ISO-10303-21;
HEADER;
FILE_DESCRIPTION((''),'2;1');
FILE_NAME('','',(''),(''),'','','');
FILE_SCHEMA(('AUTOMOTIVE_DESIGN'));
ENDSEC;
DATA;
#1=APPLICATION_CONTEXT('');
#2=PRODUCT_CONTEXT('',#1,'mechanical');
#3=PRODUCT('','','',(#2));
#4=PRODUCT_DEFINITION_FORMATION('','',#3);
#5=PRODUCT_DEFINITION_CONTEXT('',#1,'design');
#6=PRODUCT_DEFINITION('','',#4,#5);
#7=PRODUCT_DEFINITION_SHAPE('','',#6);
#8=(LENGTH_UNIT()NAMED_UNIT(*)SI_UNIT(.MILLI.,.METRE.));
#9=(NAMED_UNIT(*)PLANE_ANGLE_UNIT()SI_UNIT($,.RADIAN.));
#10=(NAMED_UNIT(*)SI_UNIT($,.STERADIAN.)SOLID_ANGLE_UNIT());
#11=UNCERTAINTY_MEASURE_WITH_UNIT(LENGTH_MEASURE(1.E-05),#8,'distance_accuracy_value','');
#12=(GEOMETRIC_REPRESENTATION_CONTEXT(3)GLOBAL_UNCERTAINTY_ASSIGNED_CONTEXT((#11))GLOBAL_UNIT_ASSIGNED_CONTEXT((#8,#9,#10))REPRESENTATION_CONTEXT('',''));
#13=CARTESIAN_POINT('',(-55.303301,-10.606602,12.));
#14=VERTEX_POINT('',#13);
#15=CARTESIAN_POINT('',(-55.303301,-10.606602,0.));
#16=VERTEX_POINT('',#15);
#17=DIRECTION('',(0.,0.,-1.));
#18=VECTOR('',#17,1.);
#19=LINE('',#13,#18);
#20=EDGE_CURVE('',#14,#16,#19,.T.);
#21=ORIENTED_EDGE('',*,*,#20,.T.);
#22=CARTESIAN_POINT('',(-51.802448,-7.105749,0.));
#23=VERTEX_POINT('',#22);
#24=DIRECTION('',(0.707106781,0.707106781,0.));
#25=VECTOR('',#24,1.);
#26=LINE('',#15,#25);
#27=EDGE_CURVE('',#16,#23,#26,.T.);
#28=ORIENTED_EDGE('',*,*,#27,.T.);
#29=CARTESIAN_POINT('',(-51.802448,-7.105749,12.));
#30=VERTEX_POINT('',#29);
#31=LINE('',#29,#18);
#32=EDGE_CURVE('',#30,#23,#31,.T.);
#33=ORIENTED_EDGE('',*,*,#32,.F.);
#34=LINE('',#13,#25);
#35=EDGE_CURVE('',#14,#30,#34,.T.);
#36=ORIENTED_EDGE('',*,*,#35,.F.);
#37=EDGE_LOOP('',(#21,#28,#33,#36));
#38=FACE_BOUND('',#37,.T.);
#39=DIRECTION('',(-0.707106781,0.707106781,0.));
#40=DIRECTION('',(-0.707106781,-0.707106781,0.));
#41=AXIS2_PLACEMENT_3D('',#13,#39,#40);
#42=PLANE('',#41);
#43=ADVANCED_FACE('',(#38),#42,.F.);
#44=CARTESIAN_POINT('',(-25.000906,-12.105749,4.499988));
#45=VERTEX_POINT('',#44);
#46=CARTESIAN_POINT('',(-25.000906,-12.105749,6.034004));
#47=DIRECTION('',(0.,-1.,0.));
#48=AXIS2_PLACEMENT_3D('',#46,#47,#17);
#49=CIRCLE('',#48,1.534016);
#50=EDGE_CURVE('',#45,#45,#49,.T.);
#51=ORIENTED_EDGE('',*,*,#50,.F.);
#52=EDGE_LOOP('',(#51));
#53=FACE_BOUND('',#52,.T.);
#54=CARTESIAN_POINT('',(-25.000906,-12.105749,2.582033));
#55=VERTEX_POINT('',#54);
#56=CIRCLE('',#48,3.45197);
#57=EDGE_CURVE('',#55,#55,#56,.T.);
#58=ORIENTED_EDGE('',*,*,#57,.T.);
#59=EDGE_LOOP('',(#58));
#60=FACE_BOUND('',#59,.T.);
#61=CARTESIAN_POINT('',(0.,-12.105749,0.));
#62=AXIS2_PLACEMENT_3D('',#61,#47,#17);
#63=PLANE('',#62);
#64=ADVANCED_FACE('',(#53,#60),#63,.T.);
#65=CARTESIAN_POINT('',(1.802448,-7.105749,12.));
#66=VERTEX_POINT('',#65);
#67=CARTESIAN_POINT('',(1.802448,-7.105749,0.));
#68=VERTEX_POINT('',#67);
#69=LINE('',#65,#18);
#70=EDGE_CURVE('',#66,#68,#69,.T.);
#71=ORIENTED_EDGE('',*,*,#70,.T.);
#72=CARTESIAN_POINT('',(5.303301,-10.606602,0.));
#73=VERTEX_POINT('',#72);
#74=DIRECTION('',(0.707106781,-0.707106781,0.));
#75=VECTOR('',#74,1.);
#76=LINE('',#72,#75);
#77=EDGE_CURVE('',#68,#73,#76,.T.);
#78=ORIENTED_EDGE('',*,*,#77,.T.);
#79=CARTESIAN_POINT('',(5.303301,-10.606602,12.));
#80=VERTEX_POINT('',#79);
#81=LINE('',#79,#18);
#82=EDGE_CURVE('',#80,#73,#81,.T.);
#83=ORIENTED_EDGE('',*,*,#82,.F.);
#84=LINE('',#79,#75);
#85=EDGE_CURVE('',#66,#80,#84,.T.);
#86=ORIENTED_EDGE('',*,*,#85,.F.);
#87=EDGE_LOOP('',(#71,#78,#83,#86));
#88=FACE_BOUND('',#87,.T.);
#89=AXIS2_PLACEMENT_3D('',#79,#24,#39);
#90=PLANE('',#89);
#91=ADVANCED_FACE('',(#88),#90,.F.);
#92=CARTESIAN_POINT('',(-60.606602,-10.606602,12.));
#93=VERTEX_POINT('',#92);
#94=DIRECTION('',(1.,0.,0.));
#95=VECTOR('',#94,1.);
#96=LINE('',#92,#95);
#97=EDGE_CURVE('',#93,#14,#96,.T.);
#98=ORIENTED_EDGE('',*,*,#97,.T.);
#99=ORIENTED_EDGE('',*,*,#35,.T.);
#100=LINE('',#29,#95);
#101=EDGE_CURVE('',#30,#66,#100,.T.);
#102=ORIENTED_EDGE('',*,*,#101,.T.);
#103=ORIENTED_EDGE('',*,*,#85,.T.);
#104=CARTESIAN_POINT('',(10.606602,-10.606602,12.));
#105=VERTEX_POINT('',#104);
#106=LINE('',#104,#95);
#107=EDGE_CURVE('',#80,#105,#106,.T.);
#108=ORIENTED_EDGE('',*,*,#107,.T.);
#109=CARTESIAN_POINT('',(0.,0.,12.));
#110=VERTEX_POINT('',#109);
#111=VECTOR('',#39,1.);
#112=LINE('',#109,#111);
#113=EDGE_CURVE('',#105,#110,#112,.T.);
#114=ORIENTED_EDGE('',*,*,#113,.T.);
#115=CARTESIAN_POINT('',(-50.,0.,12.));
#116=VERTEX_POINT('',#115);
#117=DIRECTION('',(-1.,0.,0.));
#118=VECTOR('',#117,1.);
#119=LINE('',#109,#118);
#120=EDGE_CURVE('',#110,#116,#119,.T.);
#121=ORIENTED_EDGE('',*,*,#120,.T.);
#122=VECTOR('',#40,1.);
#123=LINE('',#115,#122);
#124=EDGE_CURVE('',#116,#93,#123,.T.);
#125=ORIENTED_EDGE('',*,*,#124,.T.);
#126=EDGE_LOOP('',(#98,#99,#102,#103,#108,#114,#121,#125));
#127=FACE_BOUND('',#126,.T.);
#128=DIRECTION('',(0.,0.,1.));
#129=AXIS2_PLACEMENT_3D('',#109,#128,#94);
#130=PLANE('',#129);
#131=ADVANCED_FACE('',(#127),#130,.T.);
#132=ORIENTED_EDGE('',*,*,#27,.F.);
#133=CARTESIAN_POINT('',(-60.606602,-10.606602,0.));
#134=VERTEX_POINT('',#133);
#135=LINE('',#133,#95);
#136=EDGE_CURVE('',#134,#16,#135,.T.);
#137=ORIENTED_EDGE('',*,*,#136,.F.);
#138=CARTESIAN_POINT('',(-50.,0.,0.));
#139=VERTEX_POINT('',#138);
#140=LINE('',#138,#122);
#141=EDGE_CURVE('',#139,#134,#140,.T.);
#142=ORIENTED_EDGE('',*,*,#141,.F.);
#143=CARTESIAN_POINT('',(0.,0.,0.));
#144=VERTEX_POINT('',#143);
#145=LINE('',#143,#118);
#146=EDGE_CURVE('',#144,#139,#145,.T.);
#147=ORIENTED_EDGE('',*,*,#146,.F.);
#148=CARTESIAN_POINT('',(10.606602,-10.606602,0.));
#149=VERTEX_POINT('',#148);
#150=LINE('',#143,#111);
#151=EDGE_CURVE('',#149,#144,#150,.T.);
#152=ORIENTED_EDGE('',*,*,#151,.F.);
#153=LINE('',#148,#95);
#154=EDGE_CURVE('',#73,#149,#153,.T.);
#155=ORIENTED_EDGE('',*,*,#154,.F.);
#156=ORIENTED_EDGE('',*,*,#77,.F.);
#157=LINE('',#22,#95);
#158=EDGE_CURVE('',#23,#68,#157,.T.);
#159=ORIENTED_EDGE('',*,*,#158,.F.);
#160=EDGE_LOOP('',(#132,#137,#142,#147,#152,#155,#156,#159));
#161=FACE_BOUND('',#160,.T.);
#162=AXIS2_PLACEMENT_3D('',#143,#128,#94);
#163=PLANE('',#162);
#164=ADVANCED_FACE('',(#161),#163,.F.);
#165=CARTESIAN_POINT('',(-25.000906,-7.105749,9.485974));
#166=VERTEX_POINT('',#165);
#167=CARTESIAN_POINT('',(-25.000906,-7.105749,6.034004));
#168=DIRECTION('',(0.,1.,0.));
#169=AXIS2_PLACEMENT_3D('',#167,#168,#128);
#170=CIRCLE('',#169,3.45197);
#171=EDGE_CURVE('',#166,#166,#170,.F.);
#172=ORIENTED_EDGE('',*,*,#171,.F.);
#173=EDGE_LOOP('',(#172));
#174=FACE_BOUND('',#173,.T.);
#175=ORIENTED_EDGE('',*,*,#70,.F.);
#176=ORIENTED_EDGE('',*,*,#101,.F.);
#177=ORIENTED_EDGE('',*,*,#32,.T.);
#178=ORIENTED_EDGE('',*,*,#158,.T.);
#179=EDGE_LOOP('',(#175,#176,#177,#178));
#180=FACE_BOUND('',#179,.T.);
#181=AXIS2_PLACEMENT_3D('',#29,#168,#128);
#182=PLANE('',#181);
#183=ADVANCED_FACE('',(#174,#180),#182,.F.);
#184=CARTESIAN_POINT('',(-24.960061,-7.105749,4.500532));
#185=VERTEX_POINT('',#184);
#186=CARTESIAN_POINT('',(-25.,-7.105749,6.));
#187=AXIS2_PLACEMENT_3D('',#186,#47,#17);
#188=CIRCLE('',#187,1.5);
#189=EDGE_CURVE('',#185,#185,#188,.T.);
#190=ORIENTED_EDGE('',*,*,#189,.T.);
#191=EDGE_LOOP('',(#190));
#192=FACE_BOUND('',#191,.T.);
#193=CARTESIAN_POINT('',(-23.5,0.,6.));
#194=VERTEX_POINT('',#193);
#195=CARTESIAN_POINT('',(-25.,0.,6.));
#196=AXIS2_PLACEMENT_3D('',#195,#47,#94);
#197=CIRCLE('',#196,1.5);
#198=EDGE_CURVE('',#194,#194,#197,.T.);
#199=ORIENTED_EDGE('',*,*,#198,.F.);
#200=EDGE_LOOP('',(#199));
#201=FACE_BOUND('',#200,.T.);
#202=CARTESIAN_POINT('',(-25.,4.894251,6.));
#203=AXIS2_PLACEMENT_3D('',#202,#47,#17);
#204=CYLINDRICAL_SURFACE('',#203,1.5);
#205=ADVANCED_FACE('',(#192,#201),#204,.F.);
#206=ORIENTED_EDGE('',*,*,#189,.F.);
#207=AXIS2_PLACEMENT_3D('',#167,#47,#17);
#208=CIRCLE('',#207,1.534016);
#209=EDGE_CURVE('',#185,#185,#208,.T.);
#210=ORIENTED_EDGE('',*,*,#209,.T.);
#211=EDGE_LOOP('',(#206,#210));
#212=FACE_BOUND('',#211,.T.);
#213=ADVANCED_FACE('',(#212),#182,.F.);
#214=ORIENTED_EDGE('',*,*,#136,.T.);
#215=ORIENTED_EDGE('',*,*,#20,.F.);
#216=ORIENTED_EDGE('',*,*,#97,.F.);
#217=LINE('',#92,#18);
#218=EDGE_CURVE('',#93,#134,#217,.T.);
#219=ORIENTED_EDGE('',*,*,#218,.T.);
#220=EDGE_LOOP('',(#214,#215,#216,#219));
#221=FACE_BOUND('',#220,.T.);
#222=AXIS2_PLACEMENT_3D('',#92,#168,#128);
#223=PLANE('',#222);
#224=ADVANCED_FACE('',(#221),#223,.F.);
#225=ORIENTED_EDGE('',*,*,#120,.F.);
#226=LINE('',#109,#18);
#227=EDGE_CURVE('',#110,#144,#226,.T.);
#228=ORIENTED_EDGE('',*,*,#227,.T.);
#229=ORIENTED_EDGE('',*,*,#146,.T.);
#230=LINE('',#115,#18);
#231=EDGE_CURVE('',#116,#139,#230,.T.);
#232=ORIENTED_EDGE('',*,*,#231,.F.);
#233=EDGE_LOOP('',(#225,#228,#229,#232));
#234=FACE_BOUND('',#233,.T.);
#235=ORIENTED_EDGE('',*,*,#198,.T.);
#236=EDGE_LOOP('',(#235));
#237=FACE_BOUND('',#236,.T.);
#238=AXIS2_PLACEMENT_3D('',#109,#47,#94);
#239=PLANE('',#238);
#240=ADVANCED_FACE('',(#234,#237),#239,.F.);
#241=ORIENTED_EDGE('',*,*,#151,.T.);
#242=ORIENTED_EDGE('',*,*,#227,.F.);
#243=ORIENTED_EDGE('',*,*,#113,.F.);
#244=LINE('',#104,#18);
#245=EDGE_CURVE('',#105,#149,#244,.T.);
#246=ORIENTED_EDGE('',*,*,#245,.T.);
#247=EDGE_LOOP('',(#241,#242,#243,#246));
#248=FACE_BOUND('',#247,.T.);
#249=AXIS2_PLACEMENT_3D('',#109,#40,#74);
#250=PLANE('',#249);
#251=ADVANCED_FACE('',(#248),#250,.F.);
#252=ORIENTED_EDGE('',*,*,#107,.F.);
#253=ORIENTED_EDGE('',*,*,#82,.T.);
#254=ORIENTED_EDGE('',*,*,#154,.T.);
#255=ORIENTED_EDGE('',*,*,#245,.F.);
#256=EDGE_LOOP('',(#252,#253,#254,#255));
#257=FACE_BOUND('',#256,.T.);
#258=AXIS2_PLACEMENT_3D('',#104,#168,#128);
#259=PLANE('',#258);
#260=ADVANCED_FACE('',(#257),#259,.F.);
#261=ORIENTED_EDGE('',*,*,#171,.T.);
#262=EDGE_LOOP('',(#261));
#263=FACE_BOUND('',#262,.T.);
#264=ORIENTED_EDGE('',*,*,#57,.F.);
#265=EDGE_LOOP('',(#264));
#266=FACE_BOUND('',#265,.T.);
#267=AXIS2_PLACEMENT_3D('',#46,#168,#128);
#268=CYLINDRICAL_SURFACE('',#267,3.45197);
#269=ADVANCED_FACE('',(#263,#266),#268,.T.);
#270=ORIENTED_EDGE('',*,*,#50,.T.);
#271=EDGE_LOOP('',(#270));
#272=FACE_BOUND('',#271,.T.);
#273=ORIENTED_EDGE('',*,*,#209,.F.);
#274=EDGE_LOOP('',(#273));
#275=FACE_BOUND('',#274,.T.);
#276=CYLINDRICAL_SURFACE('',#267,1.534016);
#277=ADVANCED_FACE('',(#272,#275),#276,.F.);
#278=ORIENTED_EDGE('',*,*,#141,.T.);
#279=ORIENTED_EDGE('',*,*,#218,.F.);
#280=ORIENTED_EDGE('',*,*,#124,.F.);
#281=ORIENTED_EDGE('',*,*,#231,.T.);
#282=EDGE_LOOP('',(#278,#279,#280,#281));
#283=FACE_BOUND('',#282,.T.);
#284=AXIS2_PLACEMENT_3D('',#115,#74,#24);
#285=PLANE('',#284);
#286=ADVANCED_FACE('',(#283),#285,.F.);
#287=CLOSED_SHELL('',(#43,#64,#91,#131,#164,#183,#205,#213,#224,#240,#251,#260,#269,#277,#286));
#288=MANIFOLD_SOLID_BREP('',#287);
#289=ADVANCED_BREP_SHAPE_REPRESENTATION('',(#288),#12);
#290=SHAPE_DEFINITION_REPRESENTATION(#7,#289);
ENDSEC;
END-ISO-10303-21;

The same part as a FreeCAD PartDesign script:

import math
import FreeCAD as App
import Part
import Sketcher
from FreeCAD import Vector

doc = App.newDocument("Part")
body = doc.addObject("PartDesign::Body", "Body")

# Sketch on XY plane
sketch1 = doc.addObject("Sketcher::SketchObject", "Sketch")
body.addObject(sketch1)
sketch1.AttachmentSupport = (doc.XY_Plane, [""])
sketch1.MapMode = "FlatFace"
sketch1.addGeometry([
    Part.LineSegment(Vector(0, 0, 0), Vector(-50, 0, 0)),  # 0
    Part.LineSegment(Vector(-50, 0, 0), Vector(-60.606602, -10.606602, 0)),  # 1
    Part.LineSegment(Vector(-60.606602, -10.606602, 0), Vector(-55.303301, -10.606602, 0)),  # 2
    Part.LineSegment(Vector(-55.303301, -10.606602, 0), Vector(-51.802448, -7.105749, 0)),  # 3
    Part.LineSegment(Vector(-51.802448, -7.105749, 0), Vector(1.802448, -7.105749, 0)),  # 4
    Part.LineSegment(Vector(1.802448, -7.105749, 0), Vector(5.303301, -10.606602, 0)),  # 5
    Part.LineSegment(Vector(5.303301, -10.606602, 0), Vector(10.606602, -10.606602, 0)),  # 6
    Part.LineSegment(Vector(10.606602, -10.606602, 0), Vector(0, 0, 0)),  # 7
], False)
sketch1.addConstraint([
    Sketcher.Constraint("Coincident", 0, 2, 1, 1),
    Sketcher.Constraint("Coincident", 1, 2, 2, 1),
    Sketcher.Constraint("Coincident", 2, 2, 3, 1),
    Sketcher.Constraint("Coincident", 3, 2, 4, 1),
    Sketcher.Constraint("Coincident", 4, 2, 5, 1),
    Sketcher.Constraint("Coincident", 5, 2, 6, 1),
    Sketcher.Constraint("Coincident", 6, 2, 7, 1),
    Sketcher.Constraint("Coincident", 7, 2, 0, 1),
    Sketcher.Constraint("Horizontal", 0),
    Sketcher.Constraint("Horizontal", 2),
    Sketcher.Constraint("Horizontal", 4),
    Sketcher.Constraint("Horizontal", 6),
    Sketcher.Constraint("Coincident", 7, 2, -1, 1),
    Sketcher.Constraint("Parallel", 1, 3),
    Sketcher.Constraint("Perpendicular", 3, 5),
    Sketcher.Constraint("Parallel", 5, 7),
    Sketcher.Constraint("Horizontal", 2, 2, 5, 2),
    Sketcher.Constraint("Equal", 2, 6),
    Sketcher.Constraint("Equal", 3, 5),
    Sketcher.Constraint("DistanceX", 0, 2, 0, 1, 50.0),
    Sketcher.Constraint("Distance", 1, 15.0),
    Sketcher.Constraint("DistanceX", 2, 1, 2, 2, 5.303301),
    Sketcher.Constraint("DistanceX", 4, 1, 4, 2, 53.604896),
])
pad1 = doc.addObject("PartDesign::Pad", "Pad")
body.addObject(pad1)
pad1.Profile = sketch1
pad1.Length = 12

# Sketch on XZ plane
sketch2 = doc.addObject("Sketcher::SketchObject", "Sketch001")
body.addObject(sketch2)
sketch2.AttachmentSupport = (doc.XZ_Plane, [""])
sketch2.MapMode = "FlatFace"
sketch2.AttachmentOffset = App.Placement(Vector(0, 0, 7.105749), App.Rotation())
sketch2.addGeometry([
    Part.ArcOfCircle(Part.Circle(Vector(-25, 6, 0), Vector(0, 0, 1), 1.5), math.radians(-167.381793), math.radians(-12.618207)),  # 0
    Part.ArcOfCircle(Part.Circle(Vector(-25, 6, 0), Vector(0, 0, 1), 1.5), math.radians(-12.618207), math.radians(0)),  # 1
    Part.ArcOfCircle(Part.Circle(Vector(-25, 6, 0), Vector(0, 0, 1), 1.5), math.radians(0), math.radians(12.618207)),  # 2
    Part.ArcOfCircle(Part.Circle(Vector(-25, 6, 0), Vector(0, 0, 1), 1.5), math.radians(12.618207), math.radians(167.381793)),  # 3
    Part.ArcOfCircle(Part.Circle(Vector(-25, 6, 0), Vector(0, 0, 1), 1.5), math.radians(167.381793), math.radians(192.618207)),  # 4
], False)
sketch2.addConstraint([
    Sketcher.Constraint("Tangent", 0, 2, 1, 1),
    Sketcher.Constraint("Tangent", 1, 2, 2, 1),
    Sketcher.Constraint("Tangent", 2, 2, 3, 1),
    Sketcher.Constraint("Tangent", 3, 2, 4, 1),
    Sketcher.Constraint("Tangent", 4, 2, 0, 1),
    Sketcher.Constraint("Coincident", 2, 3, 0, 3),
    Sketcher.Constraint("Horizontal", 4, 3, 1, 2),
    Sketcher.Constraint("Horizontal", 2, 2, 3, 2),
    Sketcher.Constraint("Horizontal", 0, 2, 4, 2),
    Sketcher.Constraint("Vertical", 0, 2, 2, 2),
    Sketcher.Constraint("Radius", 0, 1.5),
    Sketcher.Constraint("DistanceX", 0, 3, -1, 1, 25.0),
    Sketcher.Constraint("DistanceY", -1, 1, 0, 3, 6.0),
    Sketcher.Constraint("DistanceX", 0, 2, -1, 1, 23.536229),
])
pocket1 = doc.addObject("PartDesign::Pocket", "Pocket")
body.addObject(pocket1)
pocket1.Profile = sketch2
pocket1.Length = 12

# Sketch on XZ plane
sketch3 = doc.addObject("Sketcher::SketchObject", "Sketch002")
body.addObject(sketch3)
sketch3.AttachmentSupport = (doc.XZ_Plane, [""])
sketch3.MapMode = "FlatFace"
sketch3.AttachmentOffset = App.Placement(Vector(0, 0, 7.105749), App.Rotation())
sketch3.addGeometry([
    Part.Circle(Vector(-25.000906, 6.034004, 0), Vector(0, 0, 1), 3.45197),
    Part.ArcOfCircle(Part.Circle(Vector(-25.000906, 6.034004, 0), Vector(0, 0, 1), 1.534016), math.radians(-21.355728), math.radians(0)),
    Part.ArcOfCircle(Part.Circle(Vector(-25.000906, 6.034004, 0), Vector(0, 0, 1), 1.534016), math.radians(-26.677566), math.radians(-21.355727)),
    Part.ArcOfCircle(Part.Circle(Vector(-25.000906, 6.034004, 0), Vector(0, 0, 1), 1.534016), math.radians(0), math.radians(333.322434)),
], False)
sketch3.addConstraint([
    Sketcher.Constraint("Tangent", 1, 1, 2, 2),
    Sketcher.Constraint("Tangent", 2, 1, 3, 2),
    Sketcher.Constraint("Tangent", 3, 1, 1, 2),
    Sketcher.Constraint("Coincident", 1, 3, 0, 3),
    Sketcher.Constraint("Horizontal", 2, 3, 3, 1),
    Sketcher.Constraint("Diameter", 0, 6.903941),
    Sketcher.Constraint("Radius", 1, 1.534016),
    Sketcher.Constraint("DistanceX", 2, 1, 3, 1, 0.1633),
    Sketcher.Constraint("DistanceX", 1, 1, -1, 1, 23.572219),
    Sketcher.Constraint("DistanceY", -1, 1, 1, 1, 5.475381),
    Sketcher.Constraint("DistanceX", 2, 1, -1, 1, 23.63019),
])
pad2 = doc.addObject("PartDesign::Pad", "Pad001")
body.addObject(pad2)
pad2.Profile = sketch3
pad2.Length = 5

doc.recompute()
